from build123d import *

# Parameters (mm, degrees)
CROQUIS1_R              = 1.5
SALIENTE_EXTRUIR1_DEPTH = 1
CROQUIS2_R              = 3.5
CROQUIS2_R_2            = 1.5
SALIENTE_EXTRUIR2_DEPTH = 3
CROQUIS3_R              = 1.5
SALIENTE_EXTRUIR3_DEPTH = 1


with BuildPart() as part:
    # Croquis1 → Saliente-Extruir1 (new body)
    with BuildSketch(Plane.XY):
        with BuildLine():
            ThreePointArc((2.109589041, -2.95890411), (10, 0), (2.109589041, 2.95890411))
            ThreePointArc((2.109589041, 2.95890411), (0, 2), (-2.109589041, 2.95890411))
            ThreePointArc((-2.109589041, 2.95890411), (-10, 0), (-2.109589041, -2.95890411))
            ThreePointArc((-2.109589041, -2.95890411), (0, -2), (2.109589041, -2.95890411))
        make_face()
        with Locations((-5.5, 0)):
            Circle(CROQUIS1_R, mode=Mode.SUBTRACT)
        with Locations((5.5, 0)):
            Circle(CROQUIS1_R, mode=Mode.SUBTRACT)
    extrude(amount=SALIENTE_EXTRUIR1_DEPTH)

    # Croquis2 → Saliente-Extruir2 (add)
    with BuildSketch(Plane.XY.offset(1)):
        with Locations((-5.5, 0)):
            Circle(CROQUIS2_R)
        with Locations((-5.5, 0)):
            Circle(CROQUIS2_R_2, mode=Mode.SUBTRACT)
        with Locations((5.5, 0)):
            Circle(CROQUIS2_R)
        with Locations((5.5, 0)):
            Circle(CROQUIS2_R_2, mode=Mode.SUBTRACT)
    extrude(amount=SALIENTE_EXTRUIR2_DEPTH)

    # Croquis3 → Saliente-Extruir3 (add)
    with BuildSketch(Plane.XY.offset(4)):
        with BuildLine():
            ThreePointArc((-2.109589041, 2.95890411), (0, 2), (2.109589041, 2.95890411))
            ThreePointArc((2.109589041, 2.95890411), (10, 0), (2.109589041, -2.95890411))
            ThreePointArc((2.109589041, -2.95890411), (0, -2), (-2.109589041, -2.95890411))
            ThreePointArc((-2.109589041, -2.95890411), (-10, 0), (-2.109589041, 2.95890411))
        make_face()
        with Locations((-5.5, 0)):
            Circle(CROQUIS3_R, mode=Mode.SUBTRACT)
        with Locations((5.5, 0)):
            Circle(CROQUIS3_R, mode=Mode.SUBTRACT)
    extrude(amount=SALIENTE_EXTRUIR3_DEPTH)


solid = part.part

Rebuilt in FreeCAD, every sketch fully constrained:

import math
import FreeCAD as App
import Part
import Sketcher
from FreeCAD import Vector
Q = App.Units.Quantity

doc = App.newDocument("Part")
body = doc.addObject("PartDesign::Body", "Body")

sketch1 = doc.addObject("Sketcher::SketchObject", "Sketch")
body.addObject(sketch1)
sketch1.AttachmentSupport = (doc.XY_Plane, [""])
sketch1.MapMode = "FlatFace"
sketch1.addGeometry([
    Part.ArcOfCircle(Part.Circle(Vector(5.5, 0, 0), Vector(0, 0, 1), 4.5), math.radians(-138.88791), math.radians(138.88791)),
    Part.ArcOfCircle(Part.Circle(Vector(0, 4.8, 0), Vector(0, 0, 1), 2.8), math.radians(-138.88791), math.radians(-41.11209)),
    Part.ArcOfCircle(Part.Circle(Vector(-5.5, 0, 0), Vector(0, 0, 1), 4.5), math.radians(41.11209), math.radians(318.88791)),
    Part.ArcOfCircle(Part.Circle(Vector(0, -4.8, 0), Vector(0, 0, 1), 2.8), math.radians(41.11209), math.radians(138.88791)),
    Part.Circle(Vector(-5.5, 0, 0), Vector(0, 0, 1), 1.5),
    Part.Circle(Vector(5.5, 0, 0), Vector(0, 0, 1), 1.5),
], False)
sketch1.addConstraint([
    Sketcher.Constraint("Tangent", 0, 2, 1, 2),
    Sketcher.Constraint("Tangent", 1, 1, 2, 1),
    Sketcher.Constraint("Tangent", 2, 2, 3, 2),
    Sketcher.Constraint("Tangent", 3, 1, 0, 1),
    Sketcher.Constraint("Coincident", 4, 3, 2, 3),
    Sketcher.Constraint("Coincident", 5, 3, 0, 3),
    Sketcher.Constraint("Equal", 0, 2),
    Sketcher.Constraint("Equal", 1, 3),
    Sketcher.Constraint("Equal", 4, 5),
    Sketcher.Constraint("Symmetric", 0, 3, 2, 3, -1, 1),
    Sketcher.Constraint("PointOnObject", 0, 3, -1),
    Sketcher.Constraint("Diameter", 4, Q("3 mm")),
    Sketcher.Constraint("Radius", 0, Q("4.5 mm")),
    Sketcher.Constraint("Radius", 1, Q("2.8 mm")),
    Sketcher.Constraint("DistanceX", 2, 3, 0, 3, Q("11 mm")),
])
pad1 = doc.addObject("PartDesign::Pad", "Pad")
body.addObject(pad1)
pad1.Profile = sketch1
pad1.Length = 1

sketch2 = doc.addObject("Sketcher::SketchObject", "Sketch001")
body.addObject(sketch2)
sketch2.AttachmentSupport = (doc.XY_Plane, [""])
sketch2.MapMode = "FlatFace"
sketch2.AttachmentOffset = App.Placement(Vector(0, 0, 1), App.Rotation())
sketch2.addGeometry([
    Part.Circle(Vector(-5.5, 0, 0), Vector(0, 0, 1), 3.5),
    Part.Circle(Vector(-5.5, 0, 0), Vector(0, 0, 1), 1.5),
    Part.Circle(Vector(5.5, 0, 0), Vector(0, 0, 1), 3.5),
    Part.Circle(Vector(5.5, 0, 0), Vector(0, 0, 1), 1.5),
], False)
sketch2.addConstraint([
    Sketcher.Constraint("Coincident", 1, 3, 0, 3),
    Sketcher.Constraint("Coincident", 3, 3, 2, 3),
    Sketcher.Constraint("Equal", 0, 2),
    Sketcher.Constraint("Equal", 1, 3),
    Sketcher.Constraint("Symmetric", 0, 3, 2, 3, -1, 1),
    Sketcher.Constraint("PointOnObject", 0, 3, -1),
    Sketcher.Constraint("Diameter", 0, Q("7 mm")),
    Sketcher.Constraint("Diameter", 1, Q("3 mm")),
    Sketcher.Constraint("DistanceX", 0, 3, 2, 3, Q("11 mm")),
])
pad2 = doc.addObject("PartDesign::Pad", "Pad001")
body.addObject(pad2)
pad2.Profile = sketch2
pad2.Length = 3

sketch3 = doc.addObject("Sketcher::SketchObject", "Sketch002")
body.addObject(sketch3)
sketch3.AttachmentSupport = (doc.XY_Plane, [""])
sketch3.MapMode = "FlatFace"
sketch3.AttachmentOffset = App.Placement(Vector(0, 0, 4), App.Rotation())
sketch3.addGeometry([
    Part.ArcOfCircle(Part.Circle(Vector(0, 4.8, 0), Vector(0, 0, 1), 2.8), math.radians(-138.88791), math.radians(-41.11209)),
    Part.ArcOfCircle(Part.Circle(Vector(-5.5, 0, 0), Vector(0, 0, 1), 4.5), math.radians(41.11209), math.radians(318.88791)),
    Part.ArcOfCircle(Part.Circle(Vector(0, -4.8, 0), Vector(0, 0, 1), 2.8), math.radians(41.11209), math.radians(138.88791)),
    Part.ArcOfCircle(Part.Circle(Vector(5.5, 0, 0), Vector(0, 0, 1), 4.5), math.radians(-138.88791), math.radians(138.88791)),
    Part.Circle(Vector(5.5, 0, 0), Vector(0, 0, 1), 1.5),
    Part.Circle(Vector(-5.5, 0, 0), Vector(0, 0, 1), 1.5),
], False)
sketch3.addConstraint([
    Sketcher.Constraint("Tangent", 0, 1, 1, 1),
    Sketcher.Constraint("Tangent", 1, 2, 2, 2),
    Sketcher.Constraint("Tangent", 2, 1, 3, 1),
    Sketcher.Constraint("Tangent", 3, 2, 0, 2),
    Sketcher.Constraint("Coincident", 4, 3, 3, 3),
    Sketcher.Constraint("Coincident", 5, 3, 1, 3),
    Sketcher.Constraint("Equal", 0, 2),
    Sketcher.Constraint("Equal", 1, 3),
    Sketcher.Constraint("Equal", 4, 5),
    Sketcher.Constraint("Symmetric", 0, 3, 2, 3, -1, 1),
    Sketcher.Constraint("PointOnObject", 0, 3, -2),
    Sketcher.Constraint("Diameter", 4, Q("3 mm")),
    Sketcher.Constraint("Radius", 0, Q("2.8 mm")),
    Sketcher.Constraint("Radius", 1, Q("4.5 mm")),
    Sketcher.Constraint("DistanceX", 1, 3, 3, 3, Q("11 mm")),
])
pad3 = doc.addObject("PartDesign::Pad", "Pad002")
body.addObject(pad3)
pad3.Profile = sketch3
pad3.Length = 1

doc.recompute()
